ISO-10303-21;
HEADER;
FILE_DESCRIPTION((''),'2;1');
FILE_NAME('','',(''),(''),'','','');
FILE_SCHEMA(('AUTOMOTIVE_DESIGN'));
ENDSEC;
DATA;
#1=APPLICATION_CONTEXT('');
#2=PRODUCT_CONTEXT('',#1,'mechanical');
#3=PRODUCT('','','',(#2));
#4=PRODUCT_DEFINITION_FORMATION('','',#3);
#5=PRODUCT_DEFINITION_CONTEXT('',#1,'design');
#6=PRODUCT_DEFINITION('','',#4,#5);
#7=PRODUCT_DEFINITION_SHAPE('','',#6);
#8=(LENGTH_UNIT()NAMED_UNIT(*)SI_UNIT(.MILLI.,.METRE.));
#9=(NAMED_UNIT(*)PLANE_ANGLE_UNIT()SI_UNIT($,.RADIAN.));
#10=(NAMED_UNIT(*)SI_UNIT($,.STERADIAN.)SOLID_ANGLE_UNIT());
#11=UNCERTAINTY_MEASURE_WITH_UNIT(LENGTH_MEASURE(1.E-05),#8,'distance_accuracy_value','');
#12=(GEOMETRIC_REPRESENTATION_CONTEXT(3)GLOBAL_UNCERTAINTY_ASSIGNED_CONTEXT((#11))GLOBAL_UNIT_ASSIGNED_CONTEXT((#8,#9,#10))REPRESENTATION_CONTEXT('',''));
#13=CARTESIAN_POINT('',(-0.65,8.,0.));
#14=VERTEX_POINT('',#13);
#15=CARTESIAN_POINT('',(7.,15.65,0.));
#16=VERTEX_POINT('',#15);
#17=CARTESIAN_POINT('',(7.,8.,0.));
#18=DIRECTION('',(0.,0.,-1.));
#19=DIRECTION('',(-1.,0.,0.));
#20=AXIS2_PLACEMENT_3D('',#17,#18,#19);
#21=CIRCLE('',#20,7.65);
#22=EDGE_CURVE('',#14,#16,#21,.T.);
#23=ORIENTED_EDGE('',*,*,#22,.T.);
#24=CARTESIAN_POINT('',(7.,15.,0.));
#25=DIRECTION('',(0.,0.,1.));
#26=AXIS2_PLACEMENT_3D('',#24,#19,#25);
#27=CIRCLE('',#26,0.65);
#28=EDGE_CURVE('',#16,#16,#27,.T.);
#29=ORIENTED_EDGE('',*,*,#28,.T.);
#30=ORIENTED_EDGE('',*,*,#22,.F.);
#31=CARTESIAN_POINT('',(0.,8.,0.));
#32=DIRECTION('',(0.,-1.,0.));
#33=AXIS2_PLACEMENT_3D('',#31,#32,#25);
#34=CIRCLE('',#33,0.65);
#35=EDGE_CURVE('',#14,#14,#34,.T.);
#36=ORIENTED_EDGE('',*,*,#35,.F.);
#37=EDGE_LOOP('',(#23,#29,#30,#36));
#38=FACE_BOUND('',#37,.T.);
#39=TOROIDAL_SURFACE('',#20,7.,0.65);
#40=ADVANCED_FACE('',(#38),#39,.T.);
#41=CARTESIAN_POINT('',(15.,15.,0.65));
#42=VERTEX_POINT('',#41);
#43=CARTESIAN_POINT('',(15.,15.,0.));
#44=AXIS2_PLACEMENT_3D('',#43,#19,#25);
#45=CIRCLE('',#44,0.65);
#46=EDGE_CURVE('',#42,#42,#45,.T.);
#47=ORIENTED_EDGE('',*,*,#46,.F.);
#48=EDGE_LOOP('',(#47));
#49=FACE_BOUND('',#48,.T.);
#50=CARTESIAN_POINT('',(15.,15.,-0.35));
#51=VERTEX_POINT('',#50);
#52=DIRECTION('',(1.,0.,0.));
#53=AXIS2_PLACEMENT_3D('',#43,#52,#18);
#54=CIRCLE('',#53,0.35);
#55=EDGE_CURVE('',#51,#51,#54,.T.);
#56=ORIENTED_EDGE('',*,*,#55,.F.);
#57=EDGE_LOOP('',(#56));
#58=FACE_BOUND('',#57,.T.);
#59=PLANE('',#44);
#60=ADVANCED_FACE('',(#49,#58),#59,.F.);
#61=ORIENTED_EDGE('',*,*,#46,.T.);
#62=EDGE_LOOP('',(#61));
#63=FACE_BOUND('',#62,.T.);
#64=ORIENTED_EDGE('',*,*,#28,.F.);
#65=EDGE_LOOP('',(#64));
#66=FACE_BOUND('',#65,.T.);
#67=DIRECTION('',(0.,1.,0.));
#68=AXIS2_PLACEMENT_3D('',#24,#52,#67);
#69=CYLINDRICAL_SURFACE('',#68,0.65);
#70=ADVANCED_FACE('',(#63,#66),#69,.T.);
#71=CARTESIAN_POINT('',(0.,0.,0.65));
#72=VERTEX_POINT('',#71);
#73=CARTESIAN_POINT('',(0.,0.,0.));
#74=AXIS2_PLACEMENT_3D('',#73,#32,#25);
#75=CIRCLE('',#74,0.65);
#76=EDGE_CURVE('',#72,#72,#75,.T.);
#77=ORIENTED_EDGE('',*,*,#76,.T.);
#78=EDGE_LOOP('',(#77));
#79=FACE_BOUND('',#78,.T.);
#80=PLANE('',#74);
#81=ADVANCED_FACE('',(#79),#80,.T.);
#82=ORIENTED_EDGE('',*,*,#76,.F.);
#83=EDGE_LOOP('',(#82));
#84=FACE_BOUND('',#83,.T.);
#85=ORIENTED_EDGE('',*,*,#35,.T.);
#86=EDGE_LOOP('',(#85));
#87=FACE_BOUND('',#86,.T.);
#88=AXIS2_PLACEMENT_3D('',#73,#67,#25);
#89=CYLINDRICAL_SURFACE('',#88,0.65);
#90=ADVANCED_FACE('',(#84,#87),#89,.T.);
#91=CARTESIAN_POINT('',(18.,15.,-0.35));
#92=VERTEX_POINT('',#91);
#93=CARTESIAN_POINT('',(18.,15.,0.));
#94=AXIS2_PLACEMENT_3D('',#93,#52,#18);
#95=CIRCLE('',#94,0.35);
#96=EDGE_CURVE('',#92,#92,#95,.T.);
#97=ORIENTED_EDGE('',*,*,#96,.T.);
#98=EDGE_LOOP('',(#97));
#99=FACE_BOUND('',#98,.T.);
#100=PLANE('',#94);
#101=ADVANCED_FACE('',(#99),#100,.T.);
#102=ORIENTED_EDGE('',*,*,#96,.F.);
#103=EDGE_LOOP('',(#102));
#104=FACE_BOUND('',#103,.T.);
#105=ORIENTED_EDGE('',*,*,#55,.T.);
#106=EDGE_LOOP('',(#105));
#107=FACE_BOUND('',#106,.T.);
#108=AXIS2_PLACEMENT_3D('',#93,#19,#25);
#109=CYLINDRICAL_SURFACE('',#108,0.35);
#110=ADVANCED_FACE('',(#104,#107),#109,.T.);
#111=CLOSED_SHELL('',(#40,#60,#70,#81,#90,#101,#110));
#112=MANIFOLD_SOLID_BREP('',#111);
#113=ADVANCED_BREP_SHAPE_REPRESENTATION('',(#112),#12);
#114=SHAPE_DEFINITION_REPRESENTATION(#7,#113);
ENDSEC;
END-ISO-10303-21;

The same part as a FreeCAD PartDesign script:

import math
import FreeCAD as App
import Part
import Sketcher

V = App.Vector

doc = App.newDocument("Part")
params = doc.addObject("Spreadsheet::Sheet", "Params")
for row, (alias, value) in enumerate([
    ("sketch1_diameter", "1.3 mm"),
    ("sketch2_radius", "7 mm"),
    ("sketch2_width", "8 mm"),
    ("sketch3_diameter", "0.7 mm"),
    ("pad1_length", "3 mm"),
], start=1):
    params.set(f"A{row}", alias)
    params.set(f"B{row}", "=" + value)
    params.setAlias(f"B{row}", alias)

body = doc.addObject("PartDesign::Body", "Body")

# Sketch on XZ plane
sketch1 = body.newObject("Sketcher::SketchObject", "Sketch")
sketch1.AttachmentSupport = (doc.getObject("XZ_Plane"), [""])
sketch1.MapMode = "FlatFace"
sketch1.addGeometry(Part.Circle(V(0, 0, 0), V(0, 0, 1), 0.7), False)
sketch1.addConstraint([
    Sketcher.Constraint("Coincident", 0, 3, -1, 1),
    Sketcher.Constraint("Diameter", 0, 1.3),
])
sketch1.setExpression("Constraints[1]", "Params.sketch1_diameter")

# Sketch on XY plane
sketch2 = body.newObject("Sketcher::SketchObject", "Sketch001")
sketch2.AttachmentSupport = (doc.getObject("XY_Plane"), [""])
sketch2.MapMode = "FlatFace"
sketch2.addGeometry([
    Part.LineSegment(V(0, 0, 0), V(0, 8, 0)),
    Part.ArcOfCircle(Part.Circle(V(7, 8, 0), V(0, 0, 1), 7), math.radians(90), math.radians(180)),
    Part.LineSegment(V(7, 15, 0), V(15, 15, 0)),
], False)
sketch2.addConstraint([
    Sketcher.Constraint("Tangent", 0, 2, 1, 2),
    Sketcher.Constraint("Tangent", 1, 1, 2, 1),
    Sketcher.Constraint("Vertical", 0),
    Sketcher.Constraint("Horizontal", 2),
    Sketcher.Constraint("Coincident", 0, 1, -1, 1),
    Sketcher.Constraint("Equal", 2, 0),
    Sketcher.Constraint("Radius", 1, 7.0),
    Sketcher.Constraint("DistanceX", 2, 1, 2, 2, 8.0),
])
sketch2.setExpression("Constraints[6]", "Params.sketch2_radius")
sketch2.setExpression("Constraints[7]", "Params.sketch2_width")
doc.recompute()

additivepipe = body.newObject("PartDesign::AdditivePipe", "AdditivePipe")
additivepipe.Profile = sketch1
additivepipe.Spine = (sketch2, ["Edge1", "Edge2", "Edge3"])

# Sketch on YZ plane
sketch3 = body.newObject("Sketcher::SketchObject", "Sketch002")
sketch3.AttachmentSupport = (doc.getObject("YZ_Plane"), [""])
sketch3.MapMode = "FlatFace"
sketch3.AttachmentOffset = App.Placement(V(0, 0, 15), App.Rotation())
sketch3.addGeometry(Part.Circle(V(15, 0, 0), V(0, 0, 1), 0.35), False)
sketch3.addConstraint([
    Sketcher.Constraint("PointOnObject", 0, 3, -1),
    Sketcher.Constraint("Diameter", 0, 0.7),
    Sketcher.Constraint("DistanceX", -1, 1, 0, 3, 15.0),
])
sketch3.setExpression("Constraints[1]", "Params.sketch3_diameter")
pad1 = body.newObject("PartDesign::Pad", "Pad")
pad1.Profile = sketch3
pad1.setExpression("Length", "Params.pad1_length")

doc.recompute()
